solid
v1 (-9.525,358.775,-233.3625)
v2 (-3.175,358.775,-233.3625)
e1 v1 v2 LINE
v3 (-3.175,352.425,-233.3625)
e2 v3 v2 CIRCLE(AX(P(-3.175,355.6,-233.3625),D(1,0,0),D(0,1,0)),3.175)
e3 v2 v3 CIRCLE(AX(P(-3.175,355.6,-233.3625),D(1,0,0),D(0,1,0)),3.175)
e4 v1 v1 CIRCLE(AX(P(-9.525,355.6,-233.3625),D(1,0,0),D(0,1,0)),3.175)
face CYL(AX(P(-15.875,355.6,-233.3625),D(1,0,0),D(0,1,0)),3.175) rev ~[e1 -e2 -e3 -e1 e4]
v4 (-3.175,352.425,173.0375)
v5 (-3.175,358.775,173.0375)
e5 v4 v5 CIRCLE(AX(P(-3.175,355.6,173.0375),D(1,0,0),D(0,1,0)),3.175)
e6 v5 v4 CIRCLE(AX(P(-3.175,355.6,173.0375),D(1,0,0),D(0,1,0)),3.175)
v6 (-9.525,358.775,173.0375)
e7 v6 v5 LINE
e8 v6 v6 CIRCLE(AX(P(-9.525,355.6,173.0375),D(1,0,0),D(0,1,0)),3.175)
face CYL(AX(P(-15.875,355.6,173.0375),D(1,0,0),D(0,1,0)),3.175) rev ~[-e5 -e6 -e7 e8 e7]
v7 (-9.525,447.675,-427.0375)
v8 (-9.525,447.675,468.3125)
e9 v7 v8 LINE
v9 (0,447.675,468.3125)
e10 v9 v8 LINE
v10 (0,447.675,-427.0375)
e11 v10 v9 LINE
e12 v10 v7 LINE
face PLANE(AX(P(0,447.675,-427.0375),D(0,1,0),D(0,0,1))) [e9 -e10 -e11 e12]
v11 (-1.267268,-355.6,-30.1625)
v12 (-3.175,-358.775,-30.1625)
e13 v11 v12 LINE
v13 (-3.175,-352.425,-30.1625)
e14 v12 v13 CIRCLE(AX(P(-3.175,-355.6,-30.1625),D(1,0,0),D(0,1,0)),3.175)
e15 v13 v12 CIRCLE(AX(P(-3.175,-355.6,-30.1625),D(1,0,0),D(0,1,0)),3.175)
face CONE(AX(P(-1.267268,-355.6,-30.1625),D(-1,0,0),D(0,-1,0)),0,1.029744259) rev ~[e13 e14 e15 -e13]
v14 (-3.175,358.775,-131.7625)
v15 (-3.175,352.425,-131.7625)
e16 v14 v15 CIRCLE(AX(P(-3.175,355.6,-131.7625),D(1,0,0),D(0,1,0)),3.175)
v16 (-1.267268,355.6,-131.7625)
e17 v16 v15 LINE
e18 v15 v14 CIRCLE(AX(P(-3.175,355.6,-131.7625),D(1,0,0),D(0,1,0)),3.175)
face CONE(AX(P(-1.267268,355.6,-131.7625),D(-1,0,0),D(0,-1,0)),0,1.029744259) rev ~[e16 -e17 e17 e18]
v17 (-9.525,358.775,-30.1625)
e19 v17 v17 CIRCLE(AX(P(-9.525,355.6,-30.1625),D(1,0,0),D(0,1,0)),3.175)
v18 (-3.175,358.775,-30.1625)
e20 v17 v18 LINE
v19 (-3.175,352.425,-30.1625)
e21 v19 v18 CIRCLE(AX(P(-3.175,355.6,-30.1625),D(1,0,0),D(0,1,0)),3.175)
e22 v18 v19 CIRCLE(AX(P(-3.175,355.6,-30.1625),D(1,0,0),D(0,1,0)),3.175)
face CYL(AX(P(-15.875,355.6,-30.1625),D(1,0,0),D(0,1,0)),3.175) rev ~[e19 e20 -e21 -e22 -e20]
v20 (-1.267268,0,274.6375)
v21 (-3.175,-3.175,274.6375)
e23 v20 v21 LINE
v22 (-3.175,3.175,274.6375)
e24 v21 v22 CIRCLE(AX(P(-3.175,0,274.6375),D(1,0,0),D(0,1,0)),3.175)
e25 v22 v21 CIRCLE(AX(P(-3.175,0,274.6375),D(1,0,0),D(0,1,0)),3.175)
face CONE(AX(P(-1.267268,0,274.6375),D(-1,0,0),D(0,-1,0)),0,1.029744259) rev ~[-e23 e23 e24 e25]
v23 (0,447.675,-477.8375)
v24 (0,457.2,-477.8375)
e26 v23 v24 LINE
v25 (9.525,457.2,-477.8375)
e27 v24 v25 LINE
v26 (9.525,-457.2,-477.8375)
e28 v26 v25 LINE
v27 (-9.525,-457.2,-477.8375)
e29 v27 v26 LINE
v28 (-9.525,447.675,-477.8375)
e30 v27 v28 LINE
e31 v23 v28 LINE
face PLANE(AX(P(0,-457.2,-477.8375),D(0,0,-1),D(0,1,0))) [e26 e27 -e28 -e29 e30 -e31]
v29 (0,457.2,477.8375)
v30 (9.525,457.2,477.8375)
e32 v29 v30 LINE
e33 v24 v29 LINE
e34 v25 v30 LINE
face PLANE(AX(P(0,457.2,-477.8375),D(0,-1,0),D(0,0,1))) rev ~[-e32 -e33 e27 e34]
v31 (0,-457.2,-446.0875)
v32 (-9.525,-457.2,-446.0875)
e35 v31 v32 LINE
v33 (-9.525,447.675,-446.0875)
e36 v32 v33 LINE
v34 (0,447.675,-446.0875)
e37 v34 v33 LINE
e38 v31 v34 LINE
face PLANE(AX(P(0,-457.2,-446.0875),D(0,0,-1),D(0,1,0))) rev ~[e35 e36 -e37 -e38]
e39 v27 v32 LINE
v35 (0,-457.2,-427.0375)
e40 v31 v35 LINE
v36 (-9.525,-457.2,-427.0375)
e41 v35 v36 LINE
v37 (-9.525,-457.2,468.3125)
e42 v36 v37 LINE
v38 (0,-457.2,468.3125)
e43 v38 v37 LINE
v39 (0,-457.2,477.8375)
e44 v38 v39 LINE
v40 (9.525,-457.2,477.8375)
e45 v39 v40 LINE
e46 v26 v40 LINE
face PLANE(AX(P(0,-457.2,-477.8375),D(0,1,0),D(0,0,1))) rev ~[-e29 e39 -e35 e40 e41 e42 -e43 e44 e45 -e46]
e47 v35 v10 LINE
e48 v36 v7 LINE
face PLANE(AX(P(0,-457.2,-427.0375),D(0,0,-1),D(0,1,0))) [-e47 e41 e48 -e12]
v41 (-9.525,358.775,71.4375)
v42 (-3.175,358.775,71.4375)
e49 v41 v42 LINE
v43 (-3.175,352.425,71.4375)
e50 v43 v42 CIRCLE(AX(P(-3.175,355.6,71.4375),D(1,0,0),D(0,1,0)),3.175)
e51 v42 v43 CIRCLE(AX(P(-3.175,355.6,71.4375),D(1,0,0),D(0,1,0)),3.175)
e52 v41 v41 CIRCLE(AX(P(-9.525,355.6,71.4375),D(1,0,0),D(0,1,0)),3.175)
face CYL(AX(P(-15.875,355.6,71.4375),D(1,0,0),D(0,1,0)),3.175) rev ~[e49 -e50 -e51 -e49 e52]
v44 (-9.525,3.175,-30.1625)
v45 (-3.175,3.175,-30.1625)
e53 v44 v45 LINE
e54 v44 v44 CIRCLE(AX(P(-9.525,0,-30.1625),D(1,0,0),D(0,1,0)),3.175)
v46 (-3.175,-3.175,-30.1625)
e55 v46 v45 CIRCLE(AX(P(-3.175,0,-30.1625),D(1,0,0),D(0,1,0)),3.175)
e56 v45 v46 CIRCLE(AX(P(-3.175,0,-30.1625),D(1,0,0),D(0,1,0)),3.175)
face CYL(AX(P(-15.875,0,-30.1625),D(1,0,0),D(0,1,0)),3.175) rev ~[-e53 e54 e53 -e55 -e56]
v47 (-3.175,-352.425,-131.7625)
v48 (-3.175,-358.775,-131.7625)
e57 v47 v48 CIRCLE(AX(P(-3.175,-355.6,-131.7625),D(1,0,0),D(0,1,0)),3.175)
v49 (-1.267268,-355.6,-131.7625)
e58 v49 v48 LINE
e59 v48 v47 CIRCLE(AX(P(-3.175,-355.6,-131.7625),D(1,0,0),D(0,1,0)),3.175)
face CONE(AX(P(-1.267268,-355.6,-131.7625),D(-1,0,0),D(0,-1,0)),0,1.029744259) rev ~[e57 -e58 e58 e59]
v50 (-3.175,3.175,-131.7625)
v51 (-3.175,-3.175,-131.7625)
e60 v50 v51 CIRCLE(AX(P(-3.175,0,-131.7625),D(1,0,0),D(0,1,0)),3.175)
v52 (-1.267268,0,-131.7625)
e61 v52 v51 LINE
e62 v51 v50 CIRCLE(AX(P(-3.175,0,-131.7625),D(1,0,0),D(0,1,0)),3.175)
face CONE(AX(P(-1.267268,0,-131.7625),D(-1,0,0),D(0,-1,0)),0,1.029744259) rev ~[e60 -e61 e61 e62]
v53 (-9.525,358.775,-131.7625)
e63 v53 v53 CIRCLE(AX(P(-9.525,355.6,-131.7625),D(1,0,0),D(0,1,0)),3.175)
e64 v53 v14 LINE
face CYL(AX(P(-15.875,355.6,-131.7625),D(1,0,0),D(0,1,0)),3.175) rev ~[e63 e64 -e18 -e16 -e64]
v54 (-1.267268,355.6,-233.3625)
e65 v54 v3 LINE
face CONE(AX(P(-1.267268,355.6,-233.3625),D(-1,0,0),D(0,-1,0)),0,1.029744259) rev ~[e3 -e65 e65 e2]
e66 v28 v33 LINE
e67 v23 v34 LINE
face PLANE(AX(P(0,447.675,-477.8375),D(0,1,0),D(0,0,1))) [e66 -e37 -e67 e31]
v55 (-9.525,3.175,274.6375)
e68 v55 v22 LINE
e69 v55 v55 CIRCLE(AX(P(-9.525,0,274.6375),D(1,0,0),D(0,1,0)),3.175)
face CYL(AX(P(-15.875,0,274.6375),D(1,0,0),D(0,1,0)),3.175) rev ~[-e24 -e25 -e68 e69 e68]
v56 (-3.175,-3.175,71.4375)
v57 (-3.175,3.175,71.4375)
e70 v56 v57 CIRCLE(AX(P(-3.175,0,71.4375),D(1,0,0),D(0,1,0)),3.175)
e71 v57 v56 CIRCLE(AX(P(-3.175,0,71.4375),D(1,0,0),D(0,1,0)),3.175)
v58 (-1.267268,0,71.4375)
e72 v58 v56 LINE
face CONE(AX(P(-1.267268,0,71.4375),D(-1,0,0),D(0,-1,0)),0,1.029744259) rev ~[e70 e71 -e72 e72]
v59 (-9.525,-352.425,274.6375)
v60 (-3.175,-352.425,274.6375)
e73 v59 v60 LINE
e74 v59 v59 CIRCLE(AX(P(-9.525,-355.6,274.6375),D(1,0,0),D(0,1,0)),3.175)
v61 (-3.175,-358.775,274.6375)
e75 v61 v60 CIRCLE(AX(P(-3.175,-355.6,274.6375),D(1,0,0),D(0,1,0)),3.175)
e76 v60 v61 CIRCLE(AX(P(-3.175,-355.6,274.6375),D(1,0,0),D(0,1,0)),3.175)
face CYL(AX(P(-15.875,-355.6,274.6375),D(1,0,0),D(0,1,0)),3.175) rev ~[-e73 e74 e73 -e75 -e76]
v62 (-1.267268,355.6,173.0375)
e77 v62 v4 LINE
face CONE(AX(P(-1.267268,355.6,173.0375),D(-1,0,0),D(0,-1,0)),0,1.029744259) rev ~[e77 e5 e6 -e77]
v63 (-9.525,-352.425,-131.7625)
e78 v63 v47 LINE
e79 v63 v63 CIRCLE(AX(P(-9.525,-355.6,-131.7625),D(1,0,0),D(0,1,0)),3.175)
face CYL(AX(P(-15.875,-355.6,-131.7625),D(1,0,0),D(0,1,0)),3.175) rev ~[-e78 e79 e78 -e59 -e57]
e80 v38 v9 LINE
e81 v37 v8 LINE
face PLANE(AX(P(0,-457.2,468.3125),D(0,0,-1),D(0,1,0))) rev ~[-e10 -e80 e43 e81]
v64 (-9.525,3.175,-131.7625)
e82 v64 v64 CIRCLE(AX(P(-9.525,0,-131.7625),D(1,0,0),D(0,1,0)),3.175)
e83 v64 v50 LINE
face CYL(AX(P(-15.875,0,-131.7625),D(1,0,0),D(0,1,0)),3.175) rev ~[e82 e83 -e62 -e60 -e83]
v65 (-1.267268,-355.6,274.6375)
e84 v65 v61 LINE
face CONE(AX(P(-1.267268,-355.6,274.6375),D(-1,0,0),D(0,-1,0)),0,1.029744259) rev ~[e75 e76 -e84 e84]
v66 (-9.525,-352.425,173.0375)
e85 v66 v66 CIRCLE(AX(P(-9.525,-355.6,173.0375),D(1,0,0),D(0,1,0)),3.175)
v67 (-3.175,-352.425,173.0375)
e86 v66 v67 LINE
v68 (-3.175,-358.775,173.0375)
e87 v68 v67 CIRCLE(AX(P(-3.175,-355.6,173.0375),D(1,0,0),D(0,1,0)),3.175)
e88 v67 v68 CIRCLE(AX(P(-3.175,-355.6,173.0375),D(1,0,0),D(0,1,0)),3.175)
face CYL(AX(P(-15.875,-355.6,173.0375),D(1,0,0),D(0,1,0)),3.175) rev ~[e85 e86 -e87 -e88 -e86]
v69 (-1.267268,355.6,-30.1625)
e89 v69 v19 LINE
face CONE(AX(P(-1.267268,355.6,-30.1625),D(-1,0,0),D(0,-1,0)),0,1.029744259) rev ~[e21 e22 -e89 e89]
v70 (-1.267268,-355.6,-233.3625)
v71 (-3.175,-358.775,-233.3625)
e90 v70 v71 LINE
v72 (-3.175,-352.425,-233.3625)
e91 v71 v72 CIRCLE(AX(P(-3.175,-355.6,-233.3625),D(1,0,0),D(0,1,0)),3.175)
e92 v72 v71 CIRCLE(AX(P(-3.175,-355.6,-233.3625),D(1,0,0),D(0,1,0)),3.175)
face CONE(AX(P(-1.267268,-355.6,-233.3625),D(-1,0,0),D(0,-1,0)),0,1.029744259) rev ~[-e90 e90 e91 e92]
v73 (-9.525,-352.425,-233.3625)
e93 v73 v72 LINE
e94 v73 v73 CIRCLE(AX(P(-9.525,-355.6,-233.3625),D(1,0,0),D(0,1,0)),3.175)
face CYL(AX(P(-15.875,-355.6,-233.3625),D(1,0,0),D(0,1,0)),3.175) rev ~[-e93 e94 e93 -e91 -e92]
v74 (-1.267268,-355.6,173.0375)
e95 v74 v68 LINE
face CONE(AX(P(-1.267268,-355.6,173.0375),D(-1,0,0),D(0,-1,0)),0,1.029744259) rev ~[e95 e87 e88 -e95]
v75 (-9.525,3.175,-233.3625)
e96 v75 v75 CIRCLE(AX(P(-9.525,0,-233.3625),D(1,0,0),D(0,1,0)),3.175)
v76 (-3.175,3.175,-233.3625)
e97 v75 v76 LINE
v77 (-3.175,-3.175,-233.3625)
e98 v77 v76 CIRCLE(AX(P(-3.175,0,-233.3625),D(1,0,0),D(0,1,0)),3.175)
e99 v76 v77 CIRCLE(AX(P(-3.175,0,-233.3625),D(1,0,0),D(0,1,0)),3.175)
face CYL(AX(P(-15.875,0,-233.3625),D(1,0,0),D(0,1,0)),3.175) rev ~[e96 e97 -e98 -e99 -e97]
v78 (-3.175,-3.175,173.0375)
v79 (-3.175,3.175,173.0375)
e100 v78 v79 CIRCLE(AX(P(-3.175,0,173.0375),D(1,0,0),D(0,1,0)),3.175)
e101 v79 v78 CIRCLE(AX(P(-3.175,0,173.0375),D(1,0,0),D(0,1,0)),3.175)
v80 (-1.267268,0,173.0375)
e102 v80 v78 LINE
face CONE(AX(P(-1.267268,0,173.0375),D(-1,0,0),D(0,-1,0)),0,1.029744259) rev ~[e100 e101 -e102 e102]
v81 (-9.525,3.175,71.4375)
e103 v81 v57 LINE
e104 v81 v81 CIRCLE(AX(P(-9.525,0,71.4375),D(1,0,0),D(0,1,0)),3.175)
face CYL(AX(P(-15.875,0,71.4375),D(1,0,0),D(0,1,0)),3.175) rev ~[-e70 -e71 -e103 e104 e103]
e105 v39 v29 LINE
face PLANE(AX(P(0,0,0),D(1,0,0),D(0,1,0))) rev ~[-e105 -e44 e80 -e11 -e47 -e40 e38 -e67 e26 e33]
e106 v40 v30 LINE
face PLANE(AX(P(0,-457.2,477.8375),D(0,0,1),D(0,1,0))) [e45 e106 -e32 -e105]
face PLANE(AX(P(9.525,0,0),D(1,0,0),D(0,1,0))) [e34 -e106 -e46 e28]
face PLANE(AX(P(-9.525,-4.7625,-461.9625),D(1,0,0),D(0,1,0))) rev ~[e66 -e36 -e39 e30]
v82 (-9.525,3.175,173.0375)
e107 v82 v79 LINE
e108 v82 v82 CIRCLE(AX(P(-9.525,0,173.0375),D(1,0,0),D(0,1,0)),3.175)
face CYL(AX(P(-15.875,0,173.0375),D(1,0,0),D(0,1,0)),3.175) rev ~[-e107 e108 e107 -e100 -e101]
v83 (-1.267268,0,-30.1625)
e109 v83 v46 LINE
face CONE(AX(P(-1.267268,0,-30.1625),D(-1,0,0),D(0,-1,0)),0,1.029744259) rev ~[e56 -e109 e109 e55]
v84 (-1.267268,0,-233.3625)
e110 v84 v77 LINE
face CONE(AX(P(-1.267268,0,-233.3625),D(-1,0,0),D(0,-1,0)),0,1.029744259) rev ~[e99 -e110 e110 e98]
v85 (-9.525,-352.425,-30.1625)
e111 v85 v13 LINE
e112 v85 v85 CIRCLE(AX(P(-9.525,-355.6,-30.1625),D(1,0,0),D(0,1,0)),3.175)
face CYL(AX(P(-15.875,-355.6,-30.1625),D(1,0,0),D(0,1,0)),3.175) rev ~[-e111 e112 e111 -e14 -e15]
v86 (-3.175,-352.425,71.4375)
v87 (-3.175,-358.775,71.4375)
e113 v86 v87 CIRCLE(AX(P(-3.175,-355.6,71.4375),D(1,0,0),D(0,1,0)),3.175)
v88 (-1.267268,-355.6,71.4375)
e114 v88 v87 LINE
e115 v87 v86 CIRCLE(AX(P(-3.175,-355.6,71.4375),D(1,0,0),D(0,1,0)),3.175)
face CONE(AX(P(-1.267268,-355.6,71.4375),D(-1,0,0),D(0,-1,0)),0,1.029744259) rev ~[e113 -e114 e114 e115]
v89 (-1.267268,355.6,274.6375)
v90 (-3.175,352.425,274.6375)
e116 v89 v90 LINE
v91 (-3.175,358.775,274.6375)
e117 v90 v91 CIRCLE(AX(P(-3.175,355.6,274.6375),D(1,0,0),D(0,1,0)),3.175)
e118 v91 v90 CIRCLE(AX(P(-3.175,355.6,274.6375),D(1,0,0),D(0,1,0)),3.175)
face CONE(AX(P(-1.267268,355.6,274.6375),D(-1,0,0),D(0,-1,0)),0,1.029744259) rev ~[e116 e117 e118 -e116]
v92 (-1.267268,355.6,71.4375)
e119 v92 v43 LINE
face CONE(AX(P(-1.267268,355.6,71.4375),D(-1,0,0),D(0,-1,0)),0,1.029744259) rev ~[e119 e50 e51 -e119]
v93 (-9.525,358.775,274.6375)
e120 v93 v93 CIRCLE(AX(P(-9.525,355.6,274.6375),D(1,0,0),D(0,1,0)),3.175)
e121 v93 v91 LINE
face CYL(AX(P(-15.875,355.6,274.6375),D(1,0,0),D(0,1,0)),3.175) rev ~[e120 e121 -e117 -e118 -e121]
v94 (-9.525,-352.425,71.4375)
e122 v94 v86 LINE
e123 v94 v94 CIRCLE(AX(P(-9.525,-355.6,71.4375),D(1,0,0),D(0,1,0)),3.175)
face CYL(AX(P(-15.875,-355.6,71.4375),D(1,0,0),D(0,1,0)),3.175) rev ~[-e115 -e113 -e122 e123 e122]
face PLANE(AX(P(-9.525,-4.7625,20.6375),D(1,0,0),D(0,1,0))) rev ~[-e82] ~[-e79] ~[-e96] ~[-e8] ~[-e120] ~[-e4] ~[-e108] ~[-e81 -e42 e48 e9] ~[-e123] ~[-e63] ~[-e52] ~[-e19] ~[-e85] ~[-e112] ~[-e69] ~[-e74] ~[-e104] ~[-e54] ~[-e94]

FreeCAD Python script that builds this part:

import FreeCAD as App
import Part
import Sketcher
Q = App.Units.Quantity

doc = App.newDocument("Part")
body = doc.addObject("PartDesign::Body", "Body")

# Sketch on YZ plane
sketch1 = body.newObject("Sketcher::SketchObject", "Sketch")
sketch1.AttachmentSupport = (doc.getObject("YZ_Plane"), [""])
sketch1.MapMode = "FlatFace"
sketch1.addGeometry([
    Part.LineSegment(App.Vector(-457.2, 477.8375, 0), App.Vector(-457.2, -477.8375, 0)),
    Part.LineSegment(App.Vector(-457.2, -477.8375, 0), App.Vector(457.2, -477.8375, 0)),
    Part.LineSegment(App.Vector(457.2, -477.8375, 0), App.Vector(457.2, 477.8375, 0)),
    Part.LineSegment(App.Vector(457.2, 477.8375, 0), App.Vector(-457.2, 477.8375, 0)),
], False)
sketch1.addConstraint([
    Sketcher.Constraint("Coincident", 0, 2, 1, 1),
    Sketcher.Constraint("Coincident", 1, 2, 2, 1),
    Sketcher.Constraint("Coincident", 2, 2, 3, 1),
    Sketcher.Constraint("Coincident", 3, 2, 0, 1),
    Sketcher.Constraint("Vertical", 0),
    Sketcher.Constraint("Horizontal", 1),
    Sketcher.Constraint("Vertical", 2),
    Sketcher.Constraint("Horizontal", 3),
    Sketcher.Constraint("Symmetric", 0, 2, 2, 2, -1, 1),
    Sketcher.Constraint("DistanceX", 1, 1, 1, 2, Q("36 in")),
    Sketcher.Constraint("DistanceY", 0, 2, 0, 1, Q("37.625 in")),
])
pad1 = body.newObject("PartDesign::Pad", "Pad")
pad1.Profile = sketch1
pad1.Length = Q("0.375 in")

# Sketch on YZ plane
sketch2 = body.newObject("Sketcher::SketchObject", "Sketch001")
sketch2.AttachmentSupport = (doc.getObject("YZ_Plane"), [""])
sketch2.MapMode = "FlatFace"
sketch2.addGeometry([
    Part.LineSegment(App.Vector(-457.2, 468.3125, 0), App.Vector(-457.2, -427.0375, 0)),  # 0
    Part.LineSegment(App.Vector(-457.2, -427.0375, 0), App.Vector(447.675, -427.0375, 0)),  # 1
    Part.LineSegment(App.Vector(447.675, -427.0375, 0), App.Vector(447.675, 468.3125, 0)),  # 2
    Part.LineSegment(App.Vector(447.675, 468.3125, 0), App.Vector(-457.2, 468.3125, 0)),  # 3
    Part.LineSegment(App.Vector(-457.2, -446.0875, 0), App.Vector(-457.2, -477.8375, 0)),  # 4
    Part.LineSegment(App.Vector(-457.2, -477.8375, 0), App.Vector(447.675, -477.8375, 0)),  # 5
    Part.LineSegment(App.Vector(447.675, -477.8375, 0), App.Vector(447.675, -446.0875, 0)),  # 6
    Part.LineSegment(App.Vector(447.675, -446.0875, 0), App.Vector(-457.2, -446.0875, 0)),  # 7
], False)
sketch2.addConstraint([
    Sketcher.Constraint("Coincident", 0, 2, 1, 1),
    Sketcher.Constraint("Coincident", 1, 2, 2, 1),
    Sketcher.Constraint("Coincident", 2, 2, 3, 1),
    Sketcher.Constraint("Coincident", 3, 2, 0, 1),
    Sketcher.Constraint("Coincident", 4, 2, 5, 1),
    Sketcher.Constraint("Coincident", 5, 2, 6, 1),
    Sketcher.Constraint("Coincident", 6, 2, 7, 1),
    Sketcher.Constraint("Coincident", 7, 2, 4, 1),
    Sketcher.Constraint("Vertical", 0),
    Sketcher.Constraint("Horizontal", 1),
    Sketcher.Constraint("Vertical", 2),
    Sketcher.Constraint("Horizontal", 3),
    Sketcher.Constraint("Vertical", 4),
    Sketcher.Constraint("Horizontal", 5),
    Sketcher.Constraint("Vertical", 6),
    Sketcher.Constraint("Horizontal", 7),
    Sketcher.Constraint("Vertical", 3, 2, 4, 2),
    Sketcher.Constraint("Vertical", 2, 2, 5, 2),
    Sketcher.Constraint("DistanceX", 0, 2, -1, 1, Q("18 in")),
    Sketcher.Constraint("DistanceY", 4, 2, 0, 2, Q("2 in")),
    Sketcher.Constraint("DistanceY", 6, 2, 2, 2, Q("36 in")),
    Sketcher.Constraint("DistanceY", 0, 2, 0, 1, Q("35.25 in")),
    Sketcher.Constraint("DistanceX", 1, 1, 1, 2, Q("35.625 in")),
    Sketcher.Constraint("DistanceY", 0, 2, -1, 1, Q("16.8125 in")),
])
pad2 = body.newObject("PartDesign::Pad", "Pad001")
pad2.Profile = sketch2
pad2.Length = Q("0.375 in")
pad2.Reversed = True

# Sketch on YZ plane
sketch3 = body.newObject("Sketcher::SketchObject", "Sketch002")
sketch3.AttachmentSupport = (doc.getObject("YZ_Plane"), [""])
sketch3.MapMode = "FlatFace"
sketch3.AttachmentOffset = App.Placement(App.Vector(0, 0, -0.375 * 25.4), App.Rotation())
sketch3.addGeometry([
    Part.Circle(App.Vector(355.6, 274.6375, 0), App.Vector(0, 0, 1), 3.175),  # 0
    Part.Circle(App.Vector(-355.6, -233.3625, 0), App.Vector(0, 0, 1), 3.175),  # 1
    Part.Circle(App.Vector(355.6, -30.1625, 0), App.Vector(0, 0, 1), 3.175),  # 2
    Part.Circle(App.Vector(-355.6, 71.4375, 0), App.Vector(0, 0, 1), 3.175),  # 3
    Part.Circle(App.Vector(-355.6, -30.1625, 0), App.Vector(0, 0, 1), 3.175),  # 4
    Part.Circle(App.Vector(0, -30.1625, 0), App.Vector(0, 0, 1), 3.175),  # 5
    Part.Circle(App.Vector(0, -233.3625, 0), App.Vector(0, 0, 1), 3.175),  # 6
    Part.Circle(App.Vector(-355.6, 274.6375, 0), App.Vector(0, 0, 1), 3.175),  # 7
    Part.Circle(App.Vector(0, -131.7625, 0), App.Vector(0, 0, 1), 3.175),  # 8
    Part.Circle(App.Vector(0, 71.4375, 0), App.Vector(0, 0, 1), 3.175),  # 9
    Part.Circle(App.Vector(355.6, 71.4375, 0), App.Vector(0, 0, 1), 3.175),  # 10
    Part.Circle(App.Vector(355.6, -131.7625, 0), App.Vector(0, 0, 1), 3.175),  # 11
    Part.Circle(App.Vector(0, 274.6375, 0), App.Vector(0, 0, 1), 3.175),  # 12
    Part.Circle(App.Vector(355.6, 173.0375, 0), App.Vector(0, 0, 1), 3.175),  # 13
    Part.Circle(App.Vector(-355.6, 173.0375, 0), App.Vector(0, 0, 1), 3.175),  # 14
    Part.Circle(App.Vector(0, 173.0375, 0), App.Vector(0, 0, 1), 3.175),  # 15
    Part.Circle(App.Vector(-355.6, -131.7625, 0), App.Vector(0, 0, 1), 3.175),  # 16
    Part.Circle(App.Vector(355.6, -233.3625, 0), App.Vector(0, 0, 1), 3.175),  # 17
], False)
sketch3.addConstraint([
    Sketcher.Constraint("Equal", 0, 1),
    Sketcher.Constraint("Equal", 1, 2),
    Sketcher.Constraint("Equal", 2, 3),
    Sketcher.Constraint("Equal", 3, 4),
    Sketcher.Constraint("Equal", 4, 5),
    Sketcher.Constraint("Equal", 5, 6),
    Sketcher.Constraint("Equal", 6, 7),
    Sketcher.Constraint("Equal", 7, 8),
    Sketcher.Constraint("Equal", 8, 9),
    Sketcher.Constraint("Equal", 9, 10),
    Sketcher.Constraint("Equal", 10, 11),
    Sketcher.Constraint("Equal", 11, 12),
    Sketcher.Constraint("Equal", 12, 13),
    Sketcher.Constraint("Equal", 13, 14),
    Sketcher.Constraint("Equal", 14, 15),
    Sketcher.Constraint("Equal", 15, 16),
    Sketcher.Constraint("Equal", 16, 17),
    Sketcher.Constraint("Symmetric", 2, 3, 4, 3, -2),
    Sketcher.Constraint("Symmetric", 0, 3, 7, 3, -2),
    Sketcher.Constraint("Symmetric", 3, 3, 10, 3, -2),
    Sketcher.Constraint("Symmetric", 13, 3, 14, 3, -2),
    Sketcher.Constraint("Symmetric", 11, 3, 16, 3, -2),
    Sketcher.Constraint("Symmetric", 1, 3, 17, 3, -2),
    Sketcher.Constraint("PointOnObject", 5, 3, -2),
    Sketcher.Constraint("PointOnObject", 6, 3, -2),
    Sketcher.Constraint("PointOnObject", 8, 3, -2),
    Sketcher.Constraint("PointOnObject", 9, 3, -2),
    Sketcher.Constraint("PointOnObject", 12, 3, -2),
    Sketcher.Constraint("PointOnObject", 15, 3, -2),
    Sketcher.Constraint("Horizontal", 4, 3, 5, 3),
    Sketcher.Constraint("Horizontal", 1, 3, 6, 3),
    Sketcher.Constraint("Horizontal", 3, 3, 9, 3),
    Sketcher.Constraint("Horizontal", 8, 3, 11, 3),
    Sketcher.Constraint("Horizontal", 7, 3, 12, 3),
    Sketcher.Constraint("Horizontal", 14, 3, 15, 3),
    Sketcher.Constraint("Vertical", 0, 3, 2, 3),
    Sketcher.Constraint("Vertical", 1, 3, 3, 3),
    Sketcher.Constraint("Vertical", 3, 3, 4, 3),
    Sketcher.Constraint("Vertical", 10, 3, 11, 3),
    Sketcher.Constraint("Vertical", 11, 3, 13, 3),
    Sketcher.Constraint("Diameter", 0, Q("0.25 in")),
    Sketcher.Constraint("DistanceX", -1, 1, 0, 3, Q("14 in")),
    Sketcher.Constraint("DistanceY", 1, 3, 0, 3, Q("20 in")),
    Sketcher.Constraint("DistanceY", 2, 3, 0, 3, Q("12 in")),
    Sketcher.Constraint("DistanceY", 1, 3, 3, 3, Q("12 in")),
    Sketcher.Constraint("DistanceY", 8, 3, 5, 3, Q("4 in")),
    Sketcher.Constraint("DistanceY", 13, 3, 0, 3, Q("4 in")),
    Sketcher.Constraint("DistanceY", -1, 1, 0, 3, Q("10.8125 in")),
])
doc.recompute()
hole = body.newObject("PartDesign::Hole", "Hole")
hole.Profile = sketch3
hole.ThreadType = "None"
hole.Diameter = Q("0.25 in")
hole.DepthType = "Dimension"
hole.Depth = Q("0.25 in")
hole.DrillPoint = "Angled"
hole.DrillPointAngle = 118
hole.Reversed = True

doc.recompute()
